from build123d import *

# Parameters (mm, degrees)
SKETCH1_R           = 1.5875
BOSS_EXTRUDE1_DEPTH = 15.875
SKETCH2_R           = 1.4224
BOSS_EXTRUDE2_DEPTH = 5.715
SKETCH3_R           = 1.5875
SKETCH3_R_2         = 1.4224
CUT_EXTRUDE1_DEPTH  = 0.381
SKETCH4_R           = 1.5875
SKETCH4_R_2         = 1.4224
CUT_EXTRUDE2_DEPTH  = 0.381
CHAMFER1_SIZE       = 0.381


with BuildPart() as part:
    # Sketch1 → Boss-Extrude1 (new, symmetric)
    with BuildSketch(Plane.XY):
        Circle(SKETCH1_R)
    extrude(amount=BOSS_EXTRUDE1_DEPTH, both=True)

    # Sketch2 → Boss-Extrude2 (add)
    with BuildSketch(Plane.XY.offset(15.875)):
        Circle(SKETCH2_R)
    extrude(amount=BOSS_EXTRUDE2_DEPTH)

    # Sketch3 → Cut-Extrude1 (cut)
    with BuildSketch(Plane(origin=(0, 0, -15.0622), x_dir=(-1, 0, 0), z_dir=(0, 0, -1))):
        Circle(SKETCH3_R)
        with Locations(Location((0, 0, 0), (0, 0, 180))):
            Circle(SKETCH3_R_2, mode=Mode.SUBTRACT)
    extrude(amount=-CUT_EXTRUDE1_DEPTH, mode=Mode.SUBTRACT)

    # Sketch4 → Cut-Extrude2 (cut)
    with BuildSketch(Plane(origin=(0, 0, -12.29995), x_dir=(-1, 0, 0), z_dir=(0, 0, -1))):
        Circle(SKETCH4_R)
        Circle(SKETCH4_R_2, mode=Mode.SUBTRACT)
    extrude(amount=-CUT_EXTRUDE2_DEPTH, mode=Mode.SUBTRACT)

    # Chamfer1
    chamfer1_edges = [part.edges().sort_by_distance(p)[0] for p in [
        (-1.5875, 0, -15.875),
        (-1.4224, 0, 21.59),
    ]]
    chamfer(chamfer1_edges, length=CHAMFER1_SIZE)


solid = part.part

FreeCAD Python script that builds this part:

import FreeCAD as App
import Part
import Sketcher
Q = App.Units.Quantity


def edges_at(feature, points):
    """Names of the edges that pass closest to the given points."""
    edges = feature.Shape.Edges
    near = lambda p: min(range(len(edges)), key=lambda i: edges[i].distToShape(Part.Vertex(*p))[0])
    return sorted({f"Edge{near(p) + 1}" for p in points})

doc = App.newDocument("Part")
body = doc.addObject("PartDesign::Body", "Body")

sketch1 = body.newObject("Sketcher::SketchObject", "Sketch")
sketch1.AttachmentSupport = (doc.getObject("XY_Plane"), [""])
sketch1.MapMode = "FlatFace"
sketch1.addGeometry(Part.Circle(App.Vector(0, 0, 0), App.Vector(0, 0, 1), 1.5875), False)
sketch1.addConstraint(Sketcher.Constraint("Coincident", 0, 3, -1, 1))
sketch1.addConstraint(Sketcher.Constraint("Diameter", 0, Q("0.125 in")))
pad1 = body.newObject("PartDesign::Pad", "Pad")
pad1.Profile = sketch1
pad1.Length = Q("1.25 in")
pad1.Midplane = True

sketch2 = body.newObject("Sketcher::SketchObject", "Sketch001")
sketch2.AttachmentSupport = (doc.getObject("XY_Plane"), [""])
sketch2.MapMode = "FlatFace"
sketch2.AttachmentOffset = App.Placement(App.Vector(0, 0, 0.625 * 25.4), App.Rotation())
sketch2.addGeometry(Part.Circle(App.Vector(0, 0, 0), App.Vector(0, 0, 1), 1.4224), False)
sketch2.addConstraint(Sketcher.Constraint("Coincident", 0, 3, -1, 1))
sketch2.addConstraint(Sketcher.Constraint("Diameter", 0, Q("0.112 in")))
pad2 = body.newObject("PartDesign::Pad", "Pad001")
pad2.Profile = sketch2
pad2.Length = Q("0.225 in")

sketch3 = body.newObject("Sketcher::SketchObject", "Sketch002")
sketch3.AttachmentSupport = (doc.getObject("XY_Plane"), [""])
sketch3.MapMode = "FlatFace"
sketch3.AttachmentOffset = App.Placement(App.Vector(0, 0, -0.593 * 25.4), App.Rotation())
sketch3.addGeometry(Part.Circle(App.Vector(0, 0, 0), App.Vector(0, 0, 1), 1.5875), False)
sketch3.addGeometry(Part.Circle(App.Vector(0, 0, 0), App.Vector(0, 0, 1), 1.4224), False)
sketch3.addConstraint(Sketcher.Constraint("Coincident", 0, 3, -1, 1))
sketch3.addConstraint(Sketcher.Constraint("Coincident", 1, 3, -1, 1))
sketch3.addConstraint(Sketcher.Constraint("Diameter", 0, Q("0.125 in")))
sketch3.addConstraint(Sketcher.Constraint("Diameter", 1, Q("0.112 in")))
pocket1 = body.newObject("PartDesign::Pocket", "Pocket")
pocket1.Profile = sketch3
pocket1.Length = Q("0.015 in")
pocket1.Reversed = True

sketch4 = body.newObject("Sketcher::SketchObject", "Sketch003")
sketch4.AttachmentSupport = (doc.getObject("XY_Plane"), [""])
sketch4.MapMode = "FlatFace"
sketch4.AttachmentOffset = App.Placement(App.Vector(0, 0, -12.29995), App.Rotation())
sketch4.addGeometry(Part.Circle(App.Vector(0, 0, 0), App.Vector(0, 0, 1), 1.5875), False)
sketch4.addGeometry(Part.Circle(App.Vector(0, 0, 0), App.Vector(0, 0, 1), 1.4224), False)
sketch4.addConstraint(Sketcher.Constraint("Coincident", 0, 3, -1, 1))
sketch4.addConstraint(Sketcher.Constraint("Coincident", 1, 3, -1, 1))
sketch4.addConstraint(Sketcher.Constraint("Diameter", 0, Q("0.125 in")))
sketch4.addConstraint(Sketcher.Constraint("Diameter", 1, Q("0.112 in")))
pocket2 = body.newObject("PartDesign::Pocket", "Pocket001")
pocket2.Profile = sketch4
pocket2.Length = Q("0.015 in")
pocket2.Reversed = True
doc.recompute()

chamfer = body.newObject("PartDesign::Chamfer", "Chamfer")
chamfer.Base = (pocket2, edges_at(pocket2, [(-1.587, 0, -15.875), (-1.422, 0, 21.59)]))
chamfer.Size = Q("0.015 in")

doc.recompute()
